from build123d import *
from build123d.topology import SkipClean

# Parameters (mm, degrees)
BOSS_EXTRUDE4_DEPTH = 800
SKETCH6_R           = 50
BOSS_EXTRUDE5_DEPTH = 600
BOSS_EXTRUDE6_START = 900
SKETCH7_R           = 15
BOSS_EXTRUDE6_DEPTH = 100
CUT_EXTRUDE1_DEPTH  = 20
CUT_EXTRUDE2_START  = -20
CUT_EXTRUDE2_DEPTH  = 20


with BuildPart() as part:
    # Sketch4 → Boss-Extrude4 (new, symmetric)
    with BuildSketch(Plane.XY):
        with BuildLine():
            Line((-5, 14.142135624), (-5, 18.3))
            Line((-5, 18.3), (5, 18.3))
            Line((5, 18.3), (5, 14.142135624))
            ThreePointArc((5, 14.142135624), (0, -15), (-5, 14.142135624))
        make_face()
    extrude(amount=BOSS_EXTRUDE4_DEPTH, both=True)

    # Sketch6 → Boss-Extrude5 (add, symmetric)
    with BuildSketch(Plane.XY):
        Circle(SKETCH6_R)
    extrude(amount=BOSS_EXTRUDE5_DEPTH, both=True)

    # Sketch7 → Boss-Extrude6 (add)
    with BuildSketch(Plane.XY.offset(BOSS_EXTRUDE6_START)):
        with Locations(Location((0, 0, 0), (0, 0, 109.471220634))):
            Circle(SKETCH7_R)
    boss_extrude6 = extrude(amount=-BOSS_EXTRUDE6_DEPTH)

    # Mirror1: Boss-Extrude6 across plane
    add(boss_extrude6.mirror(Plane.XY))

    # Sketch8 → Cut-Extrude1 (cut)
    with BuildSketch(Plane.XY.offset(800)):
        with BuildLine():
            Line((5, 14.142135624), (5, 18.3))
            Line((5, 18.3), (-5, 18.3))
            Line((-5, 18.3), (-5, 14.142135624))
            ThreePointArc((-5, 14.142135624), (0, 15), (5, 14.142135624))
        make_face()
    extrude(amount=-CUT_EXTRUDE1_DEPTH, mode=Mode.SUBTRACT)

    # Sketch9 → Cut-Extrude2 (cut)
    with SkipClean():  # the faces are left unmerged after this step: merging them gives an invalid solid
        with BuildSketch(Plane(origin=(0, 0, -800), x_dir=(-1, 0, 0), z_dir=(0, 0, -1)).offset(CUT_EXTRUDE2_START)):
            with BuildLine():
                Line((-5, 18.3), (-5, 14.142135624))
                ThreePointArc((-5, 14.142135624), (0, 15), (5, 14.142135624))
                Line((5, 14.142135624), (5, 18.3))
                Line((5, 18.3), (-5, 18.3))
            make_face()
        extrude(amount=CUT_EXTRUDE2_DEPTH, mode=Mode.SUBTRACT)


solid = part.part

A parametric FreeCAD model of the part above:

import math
import FreeCAD as App
import Part
import Sketcher

V = App.Vector
Q = App.Units.Quantity

doc = App.newDocument("Part")
body = doc.addObject("PartDesign::Body", "Body")

# Sketch on XY plane
sketch1 = body.newObject("Sketcher::SketchObject", "Sketch")
sketch1.AttachmentSupport = (doc.getObject("XY_Plane"), [""])
sketch1.MapMode = "FlatFace"
sketch1.addGeometry(Part.LineSegment(V(-5, 18.3, 0), V(-5, 14.1, 0)), False)
sketch1.addGeometry(Part.ArcOfCircle(Part.Circle(V(0, 0, 0), V(0, 0, 1), 15), math.radians(109), math.radians(431)), False)
sketch1.addGeometry(Part.LineSegment(V(5, 14.1, 0), V(5, 18.3, 0)), False)
sketch1.addGeometry(Part.LineSegment(V(5, 18.3, 0), V(-5, 18.3, 0)), False)
sketch1.addConstraint(Sketcher.Constraint("Coincident", 0, 2, 1, 1))
sketch1.addConstraint(Sketcher.Constraint("Coincident", 1, 2, 2, 1))
sketch1.addConstraint(Sketcher.Constraint("Coincident", 2, 2, 3, 1))
sketch1.addConstraint(Sketcher.Constraint("Coincident", 3, 2, 0, 1))
sketch1.addConstraint(Sketcher.Constraint("Vertical", 0))
sketch1.addConstraint(Sketcher.Constraint("Vertical", 2))
sketch1.addConstraint(Sketcher.Constraint("Horizontal", 3))
sketch1.addConstraint(Sketcher.Constraint("Coincident", 1, 3, -1, 1))
sketch1.addConstraint(Sketcher.Constraint("Horizontal", 0, 2, 1, 2))
sketch1.addConstraint(Sketcher.Constraint("Radius", 1, Q("15 mm")))
sketch1.addConstraint(Sketcher.Constraint("DistanceX", 3, 2, 3, 1, Q("10 mm")))
sketch1.addConstraint(Sketcher.Constraint("DistanceY", -1, 1, 2, 2, Q("18.3 mm")))
pad1 = body.newObject("PartDesign::Pad", "Pad")
pad1.Profile = sketch1
pad1.Length = 1600
pad1.Midplane = True

# Sketch on XY plane
sketch2 = body.newObject("Sketcher::SketchObject", "Sketch001")
sketch2.AttachmentSupport = (doc.getObject("XY_Plane"), [""])
sketch2.MapMode = "FlatFace"
sketch2.addGeometry(Part.Circle(V(0, 0, 0), V(0, 0, 1), 50), False)
sketch2.addConstraint(Sketcher.Constraint("Coincident", 0, 3, -1, 1))
sketch2.addConstraint(Sketcher.Constraint("Diameter", 0, Q("100 mm")))
pad2 = body.newObject("PartDesign::Pad", "Pad001")
pad2.Profile = sketch2
pad2.Length = 1200
pad2.Midplane = True

# Sketch on XY plane
sketch3 = body.newObject("Sketcher::SketchObject", "Sketch002")
sketch3.AttachmentSupport = (doc.getObject("XY_Plane"), [""])
sketch3.MapMode = "FlatFace"
sketch3.AttachmentOffset = App.Placement(V(0, 0, 900), App.Rotation())
sketch3.addGeometry(Part.Circle(V(0, 0, 0), V(0, 0, 1), 15), False)
sketch3.addConstraint(Sketcher.Constraint("Coincident", 0, 3, -1, 1))
sketch3.addConstraint(Sketcher.Constraint("Diameter", 0, Q("30 mm")))
pad3 = body.newObject("PartDesign::Pad", "Pad002")
pad3.Profile = sketch3
pad3.Length = 100
pad3.Reversed = True
doc.recompute()

mirrored = body.newObject("PartDesign::Mirrored", "Mirrored")
mirrored.Originals = [pad3]
mirrored.MirrorPlane = (doc.getObject("XY_Plane"), [""])
body.Tip = mirrored

# Sketch on XY plane
sketch4 = body.newObject("Sketcher::SketchObject", "Sketch003")
sketch4.AttachmentSupport = (doc.getObject("XY_Plane"), [""])
sketch4.MapMode = "FlatFace"
sketch4.AttachmentOffset = App.Placement(V(0, 0, 800), App.Rotation())
sketch4.addGeometry(Part.LineSegment(V(5, 14.1, 0), V(5, 18.3, 0)), False)
sketch4.addGeometry(Part.LineSegment(V(5, 18.3, 0), V(-5, 18.3, 0)), False)
sketch4.addGeometry(Part.LineSegment(V(-5, 18.3, 0), V(-5, 14.1, 0)), False)
sketch4.addGeometry(Part.ArcOfCircle(Part.Circle(V(0, 0, 0), V(0, 0, 1), 15), math.radians(71), math.radians(109)), False)
sketch4.addConstraint(Sketcher.Constraint("Coincident", 0, 2, 1, 1))
sketch4.addConstraint(Sketcher.Constraint("Coincident", 1, 2, 2, 1))
sketch4.addConstraint(Sketcher.Constraint("Coincident", 2, 2, 3, 2))
sketch4.addConstraint(Sketcher.Constraint("Coincident", 3, 1, 0, 1))
sketch4.addConstraint(Sketcher.Constraint("Vertical", 0))
sketch4.addConstraint(Sketcher.Constraint("Horizontal", 1))
sketch4.addConstraint(Sketcher.Constraint("Vertical", 2))
sketch4.addConstraint(Sketcher.Constraint("Coincident", 3, 3, -1, 1))
sketch4.addConstraint(Sketcher.Constraint("Horizontal", 2, 2, 3, 1))
sketch4.addConstraint(Sketcher.Constraint("Radius", 3, Q("15 mm")))
sketch4.addConstraint(Sketcher.Constraint("DistanceX", 1, 2, 1, 1, Q("10 mm")))
sketch4.addConstraint(Sketcher.Constraint("DistanceY", -1, 1, 0, 2, Q("18.3 mm")))
pocket1 = body.newObject("PartDesign::Pocket", "Pocket")
pocket1.Profile = sketch4
pocket1.Length = 20

# Sketch on XY plane
sketch5 = body.newObject("Sketcher::SketchObject", "Sketch004")
sketch5.AttachmentSupport = (doc.getObject("XY_Plane"), [""])
sketch5.MapMode = "FlatFace"
sketch5.AttachmentOffset = App.Placement(V(0, 0, -780), App.Rotation())
sketch5.addGeometry(Part.LineSegment(V(5, 18.3, 0), V(5, 14.1, 0)), False)
sketch5.addGeometry(Part.ArcOfCircle(Part.Circle(V(0, 0, 0), V(0, 0, 1), 15), math.radians(71), math.radians(109)), False)
sketch5.addGeometry(Part.LineSegment(V(-5, 14.1, 0), V(-5, 18.3, 0)), False)
sketch5.addGeometry(Part.LineSegment(V(-5, 18.3, 0), V(5, 18.3, 0)), False)
sketch5.addConstraint(Sketcher.Constraint("Coincident", 0, 2, 1, 1))
sketch5.addConstraint(Sketcher.Constraint("Coincident", 1, 2, 2, 1))
sketch5.addConstraint(Sketcher.Constraint("Coincident", 2, 2, 3, 1))
sketch5.addConstraint(Sketcher.Constraint("Coincident", 3, 2, 0, 1))
sketch5.addConstraint(Sketcher.Constraint("Vertical", 0))
sketch5.addConstraint(Sketcher.Constraint("Vertical", 2))
sketch5.addConstraint(Sketcher.Constraint("Horizontal", 3))
sketch5.addConstraint(Sketcher.Constraint("Coincident", 1, 3, -1, 1))
sketch5.addConstraint(Sketcher.Constraint("Horizontal", 0, 2, 1, 2))
sketch5.addConstraint(Sketcher.Constraint("Radius", 1, Q("15 mm")))
sketch5.addConstraint(Sketcher.Constraint("DistanceX", 3, 1, 3, 2, Q("10 mm")))
sketch5.addConstraint(Sketcher.Constraint("DistanceY", -1, 1, 2, 2, Q("18.3 mm")))
pocket2 = body.newObject("PartDesign::Pocket", "Pocket001")
pocket2.Profile = sketch5
pocket2.Length = 20

doc.recompute()
